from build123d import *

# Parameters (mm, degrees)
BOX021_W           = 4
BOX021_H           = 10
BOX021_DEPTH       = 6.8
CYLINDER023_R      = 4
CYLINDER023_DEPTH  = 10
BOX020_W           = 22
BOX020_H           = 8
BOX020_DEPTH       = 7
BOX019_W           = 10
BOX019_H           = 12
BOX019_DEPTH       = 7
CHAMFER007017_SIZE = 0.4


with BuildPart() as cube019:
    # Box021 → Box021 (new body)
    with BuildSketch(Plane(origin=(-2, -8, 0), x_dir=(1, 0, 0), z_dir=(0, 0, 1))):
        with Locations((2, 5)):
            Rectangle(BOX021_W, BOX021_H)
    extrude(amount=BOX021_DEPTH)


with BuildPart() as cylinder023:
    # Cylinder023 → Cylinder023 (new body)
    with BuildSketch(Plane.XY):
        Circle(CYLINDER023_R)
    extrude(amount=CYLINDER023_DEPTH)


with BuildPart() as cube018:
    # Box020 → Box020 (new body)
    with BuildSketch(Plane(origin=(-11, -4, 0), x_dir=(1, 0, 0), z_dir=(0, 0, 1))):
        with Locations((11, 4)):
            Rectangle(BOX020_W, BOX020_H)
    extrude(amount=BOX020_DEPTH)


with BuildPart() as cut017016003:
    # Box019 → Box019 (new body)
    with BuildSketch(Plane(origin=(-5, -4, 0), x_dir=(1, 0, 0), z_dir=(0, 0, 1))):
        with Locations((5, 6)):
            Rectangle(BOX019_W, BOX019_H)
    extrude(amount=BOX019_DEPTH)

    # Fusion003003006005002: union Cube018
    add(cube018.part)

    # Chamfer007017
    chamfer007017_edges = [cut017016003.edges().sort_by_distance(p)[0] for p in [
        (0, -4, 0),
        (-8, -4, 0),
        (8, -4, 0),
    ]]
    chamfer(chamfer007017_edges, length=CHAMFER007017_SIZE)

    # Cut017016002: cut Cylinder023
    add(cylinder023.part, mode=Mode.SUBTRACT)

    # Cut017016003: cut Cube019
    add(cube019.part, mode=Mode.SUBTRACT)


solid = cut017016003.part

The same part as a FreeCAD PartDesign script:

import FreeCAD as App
import Part
import Sketcher
Q = App.Units.Quantity


def edges_at(feature, points):
    """Names of the edges that pass closest to the given points."""
    edges = feature.Shape.Edges
    near = lambda p: min(range(len(edges)), key=lambda i: edges[i].distToShape(Part.Vertex(*p))[0])
    return sorted({f"Edge{near(p) + 1}" for p in points})


def add_polygon(sketch, points):
    """Adds a closed chain of lines whose ends are joined by coincident constraints."""
    first, n = sketch.GeometryCount, len(points)
    for a, b in zip(points, points[1:] + points[:1]):
        sketch.addGeometry(Part.LineSegment(App.Vector(*a, 0), App.Vector(*b, 0)), False)
    for i in range(n):
        sketch.addConstraint(Sketcher.Constraint("Coincident", first + i, 2, first + (i + 1) % n, 1))

doc = App.newDocument("Part")
body = doc.addObject("PartDesign::Body", "Body")

# Sketch on XY plane
sketch1 = doc.addObject("Sketcher::SketchObject", "Sketch")
body.addObject(sketch1)
sketch1.AttachmentSupport = (doc.XY_Plane, [""])
sketch1.MapMode = "FlatFace"
add_polygon(sketch1, [(-2, 2), (-2, -8), (2, -8), (2, 2)])  # lines 0-3
sketch1.addConstraint([
    Sketcher.Constraint("Vertical", 0),
    Sketcher.Constraint("Horizontal", 1),
    Sketcher.Constraint("Vertical", 2),
    Sketcher.Constraint("Horizontal", 3),
    Sketcher.Constraint("DistanceX", 1, 1, 1, 2, Q("4 mm")),
    Sketcher.Constraint("DistanceY", 0, 2, 0, 1, Q("10 mm")),
    Sketcher.Constraint("DistanceX", 0, 2, -1, 1, Q("2 mm")),
    Sketcher.Constraint("DistanceY", 0, 2, -1, 1, Q("8 mm")),
])
pad1 = doc.addObject("PartDesign::Pad", "Pad")
body.addObject(pad1)
pad1.Profile = sketch1
pad1.Length = 6.8
body2 = doc.addObject("PartDesign::Body", "Body001")

# Sketch on XY plane
sketch2 = doc.addObject("Sketcher::SketchObject", "Sketch001")
body2.addObject(sketch2)
sketch2.AttachmentSupport = (doc.getObject("XY_Plane001"), [""])
sketch2.MapMode = "FlatFace"
sketch2.addGeometry(Part.Circle(App.Vector(0, 0, 0), App.Vector(0, 0, 1), 4), False)
sketch2.addConstraint([
    Sketcher.Constraint("Coincident", 0, 3, -1, 1),
    Sketcher.Constraint("Diameter", 0, Q("8 mm")),
])
pad2 = doc.addObject("PartDesign::Pad", "Pad001")
body2.addObject(pad2)
pad2.Profile = sketch2
pad2.Length = 10
body3 = doc.addObject("PartDesign::Body", "Body002")

# Sketch on XY plane
sketch3 = doc.addObject("Sketcher::SketchObject", "Sketch002")
body3.addObject(sketch3)
sketch3.AttachmentSupport = (doc.getObject("XY_Plane002"), [""])
sketch3.MapMode = "FlatFace"
add_polygon(sketch3, [(-11, 4), (-11, -4), (11, -4), (11, 4)])  # lines 0-3
sketch3.addConstraint([
    Sketcher.Constraint("Vertical", 0),
    Sketcher.Constraint("Horizontal", 1),
    Sketcher.Constraint("Vertical", 2),
    Sketcher.Constraint("Horizontal", 3),
    Sketcher.Constraint("Symmetric", 0, 2, 2, 2, -1, 1),
    Sketcher.Constraint("DistanceX", 1, 1, 1, 2, Q("22 mm")),
    Sketcher.Constraint("DistanceY", 0, 2, 0, 1, Q("8 mm")),
])
pad3 = doc.addObject("PartDesign::Pad", "Pad002")
body3.addObject(pad3)
pad3.Profile = sketch3
pad3.Length = 7
body4 = doc.addObject("PartDesign::Body", "Body003")

# Sketch on XY plane
sketch4 = doc.addObject("Sketcher::SketchObject", "Sketch003")
body4.addObject(sketch4)
sketch4.AttachmentSupport = (doc.getObject("XY_Plane003"), [""])
sketch4.MapMode = "FlatFace"
add_polygon(sketch4, [(-5, 8), (-5, -4), (5, -4), (5, 8)])  # lines 0-3
sketch4.addConstraint([
    Sketcher.Constraint("Vertical", 0),
    Sketcher.Constraint("Horizontal", 1),
    Sketcher.Constraint("Vertical", 2),
    Sketcher.Constraint("Horizontal", 3),
    Sketcher.Constraint("DistanceX", 1, 1, 1, 2, Q("10 mm")),
    Sketcher.Constraint("DistanceY", 0, 2, 0, 1, Q("12 mm")),
    Sketcher.Constraint("DistanceX", 0, 2, -1, 1, Q("5 mm")),
    Sketcher.Constraint("DistanceY", 0, 2, -1, 1, Q("4 mm")),
])
pad4 = doc.addObject("PartDesign::Pad", "Pad003")
body4.addObject(pad4)
pad4.Profile = sketch4
pad4.Length = 7
doc.recompute()

boolean = doc.addObject("PartDesign::Boolean", "Boolean")
body4.addObject(boolean)
boolean.Type = "Fuse"
boolean.addObjects([body3])
doc.recompute()

chamfer = doc.addObject("PartDesign::Chamfer", "Chamfer")
body4.addObject(chamfer)
chamfer.Base = (boolean, edges_at(boolean, [(0, -4, 0), (0, -4, 0), (0, -4, 0)]))
chamfer.Size = 0.4
doc.recompute()

boolean2 = doc.addObject("PartDesign::Boolean", "Boolean001")
body4.addObject(boolean2)
boolean2.Type = "Cut"
boolean2.addObjects([body2])
doc.recompute()

boolean3 = doc.addObject("PartDesign::Boolean", "Boolean002")
body4.addObject(boolean3)
boolean3.Type = "Cut"
boolean3.addObjects([body])

doc.recompute()
